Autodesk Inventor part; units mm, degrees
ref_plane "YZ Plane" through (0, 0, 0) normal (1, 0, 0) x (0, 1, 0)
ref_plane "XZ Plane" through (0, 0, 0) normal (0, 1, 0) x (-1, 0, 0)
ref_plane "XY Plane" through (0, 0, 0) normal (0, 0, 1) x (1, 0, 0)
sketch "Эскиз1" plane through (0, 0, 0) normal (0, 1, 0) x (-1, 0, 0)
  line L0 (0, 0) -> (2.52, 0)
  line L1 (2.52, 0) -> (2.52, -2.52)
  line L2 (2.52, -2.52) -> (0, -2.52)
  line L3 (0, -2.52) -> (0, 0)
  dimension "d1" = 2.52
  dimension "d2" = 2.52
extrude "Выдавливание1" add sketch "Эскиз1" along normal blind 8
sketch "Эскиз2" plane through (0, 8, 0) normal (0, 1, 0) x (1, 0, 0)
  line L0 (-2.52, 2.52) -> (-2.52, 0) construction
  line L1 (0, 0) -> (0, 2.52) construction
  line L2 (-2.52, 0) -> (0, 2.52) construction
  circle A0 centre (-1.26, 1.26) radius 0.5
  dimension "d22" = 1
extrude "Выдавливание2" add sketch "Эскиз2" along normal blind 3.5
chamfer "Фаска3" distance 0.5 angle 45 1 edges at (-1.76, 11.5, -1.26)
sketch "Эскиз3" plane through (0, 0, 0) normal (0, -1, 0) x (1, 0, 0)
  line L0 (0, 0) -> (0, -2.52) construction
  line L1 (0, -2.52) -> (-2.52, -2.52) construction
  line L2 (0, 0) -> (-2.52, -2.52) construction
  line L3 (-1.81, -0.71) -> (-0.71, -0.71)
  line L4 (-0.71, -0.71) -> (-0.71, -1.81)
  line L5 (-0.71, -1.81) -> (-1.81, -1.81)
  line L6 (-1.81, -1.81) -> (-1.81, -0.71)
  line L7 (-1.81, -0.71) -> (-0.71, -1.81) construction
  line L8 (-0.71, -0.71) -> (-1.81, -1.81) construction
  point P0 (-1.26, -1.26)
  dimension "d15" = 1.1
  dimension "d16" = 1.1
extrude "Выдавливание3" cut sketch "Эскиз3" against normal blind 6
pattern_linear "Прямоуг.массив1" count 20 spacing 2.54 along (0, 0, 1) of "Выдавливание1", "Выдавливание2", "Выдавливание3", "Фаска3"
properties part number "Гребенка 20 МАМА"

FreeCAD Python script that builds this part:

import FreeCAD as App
import Part
import Sketcher
Q = App.Units.Quantity


def edges_at(feature, points):
    """Names of the edges that pass closest to the given points."""
    edges = feature.Shape.Edges
    near = lambda p: min(range(len(edges)), key=lambda i: edges[i].distToShape(Part.Vertex(*p))[0])
    return sorted({f"Edge{near(p) + 1}" for p in points})

doc = App.newDocument("Part")
body = doc.addObject("PartDesign::Body", "Body")
body.AllowCompound = True

# Sketch on XZ plane
sketch1 = body.newObject("Sketcher::SketchObject", "Sketch")
sketch1.AttachmentSupport = (doc.getObject("XZ_Plane"), [""])
sketch1.MapMode = "FlatFace"
sketch1.addGeometry([
    Part.LineSegment(App.Vector(-2.52, 0, 0), App.Vector(0, 0, 0)),
    Part.LineSegment(App.Vector(0, 0, 0), App.Vector(0, -2.52, 0)),
    Part.LineSegment(App.Vector(0, -2.52, 0), App.Vector(-2.52, -2.52, 0)),
    Part.LineSegment(App.Vector(-2.52, -2.52, 0), App.Vector(-2.52, 0, 0)),
], False)
sketch1.addConstraint([
    Sketcher.Constraint("Coincident", 0, 2, 1, 1),
    Sketcher.Constraint("Coincident", 1, 2, 2, 1),
    Sketcher.Constraint("Coincident", 2, 2, 3, 1),
    Sketcher.Constraint("Coincident", 3, 2, 0, 1),
    Sketcher.Constraint("Horizontal", 0),
    Sketcher.Constraint("Vertical", 1),
    Sketcher.Constraint("Horizontal", 2),
    Sketcher.Constraint("Vertical", 3),
    Sketcher.Constraint("Coincident", 0, 2, -1, 1),
    Sketcher.Constraint("Equal", 2, 1),
    Sketcher.Constraint("DistanceX", 0, 1, 0, 2, Q("2.52 mm")),
])
pad1 = body.newObject("PartDesign::Pad", "Pad")
pad1.Profile = sketch1
pad1.Length = 8
pad1.Reversed = True

# Sketch on XZ plane
sketch2 = body.newObject("Sketcher::SketchObject", "Sketch001")
sketch2.AttachmentSupport = (doc.getObject("XZ_Plane"), [""])
sketch2.MapMode = "FlatFace"
sketch2.AttachmentOffset = App.Placement(App.Vector(0, 0, -8), App.Rotation())
sketch2.addGeometry(Part.Circle(App.Vector(-1.26, -1.26, 0), App.Vector(0, 0, 1), 0.5), False)
sketch2.addConstraint([
    Sketcher.Constraint("Diameter", 0, Q("1 mm")),
    Sketcher.Constraint("DistanceX", 0, 3, -1, 1, Q("1.26 mm")),
    Sketcher.Constraint("DistanceY", 0, 3, -1, 1, Q("1.26 mm")),
])
pad2 = body.newObject("PartDesign::Pad", "Pad001")
pad2.Profile = sketch2
pad2.Length = 3.5
pad2.Reversed = True
doc.recompute()

chamfer = body.newObject("PartDesign::Chamfer", "Chamfer")
chamfer.Base = (pad2, edges_at(pad2, [(-1.76, 11.5, -1.26)]))
chamfer.Size = 0.5

# Sketch on XZ plane
sketch3 = body.newObject("Sketcher::SketchObject", "Sketch002")
sketch3.AttachmentSupport = (doc.getObject("XZ_Plane"), [""])
sketch3.MapMode = "FlatFace"
sketch3.addGeometry([
    Part.LineSegment(App.Vector(-0.71, -0.71, 0), App.Vector(-1.81, -0.71, 0)),
    Part.LineSegment(App.Vector(-1.81, -0.71, 0), App.Vector(-1.81, -1.81, 0)),
    Part.LineSegment(App.Vector(-1.81, -1.81, 0), App.Vector(-0.71, -1.81, 0)),
    Part.LineSegment(App.Vector(-0.71, -1.81, 0), App.Vector(-0.71, -0.71, 0)),
], False)
sketch3.addConstraint([
    Sketcher.Constraint("Coincident", 0, 2, 1, 1),
    Sketcher.Constraint("Coincident", 1, 2, 2, 1),
    Sketcher.Constraint("Coincident", 2, 2, 3, 1),
    Sketcher.Constraint("Coincident", 3, 2, 0, 1),
    Sketcher.Constraint("Horizontal", 0),
    Sketcher.Constraint("Vertical", 1),
    Sketcher.Constraint("Horizontal", 2),
    Sketcher.Constraint("Vertical", 3),
    Sketcher.Constraint("Equal", 2, 1),
    Sketcher.Constraint("DistanceX", 0, 2, 0, 1, Q("1.1 mm")),
    Sketcher.Constraint("DistanceX", 0, 2, -1, 1, Q("1.81 mm")),
    Sketcher.Constraint("DistanceY", 0, 2, -1, 1, Q("0.71 mm")),
])
pocket1 = body.newObject("PartDesign::Pocket", "Pocket")
pocket1.Profile = sketch3
pocket1.Length = 6
doc.recompute()

linearpattern = body.newObject("PartDesign::LinearPattern", "LinearPattern")
linearpattern.Originals = [pad1, pad2, pocket1, chamfer]
linearpattern.Direction = (doc.getObject("Z_Axis"), [""])
linearpattern.Mode = "offset"
linearpattern.Offset = 2.54
linearpattern.Occurrences = 20
body.Tip = linearpattern

doc.recompute()
